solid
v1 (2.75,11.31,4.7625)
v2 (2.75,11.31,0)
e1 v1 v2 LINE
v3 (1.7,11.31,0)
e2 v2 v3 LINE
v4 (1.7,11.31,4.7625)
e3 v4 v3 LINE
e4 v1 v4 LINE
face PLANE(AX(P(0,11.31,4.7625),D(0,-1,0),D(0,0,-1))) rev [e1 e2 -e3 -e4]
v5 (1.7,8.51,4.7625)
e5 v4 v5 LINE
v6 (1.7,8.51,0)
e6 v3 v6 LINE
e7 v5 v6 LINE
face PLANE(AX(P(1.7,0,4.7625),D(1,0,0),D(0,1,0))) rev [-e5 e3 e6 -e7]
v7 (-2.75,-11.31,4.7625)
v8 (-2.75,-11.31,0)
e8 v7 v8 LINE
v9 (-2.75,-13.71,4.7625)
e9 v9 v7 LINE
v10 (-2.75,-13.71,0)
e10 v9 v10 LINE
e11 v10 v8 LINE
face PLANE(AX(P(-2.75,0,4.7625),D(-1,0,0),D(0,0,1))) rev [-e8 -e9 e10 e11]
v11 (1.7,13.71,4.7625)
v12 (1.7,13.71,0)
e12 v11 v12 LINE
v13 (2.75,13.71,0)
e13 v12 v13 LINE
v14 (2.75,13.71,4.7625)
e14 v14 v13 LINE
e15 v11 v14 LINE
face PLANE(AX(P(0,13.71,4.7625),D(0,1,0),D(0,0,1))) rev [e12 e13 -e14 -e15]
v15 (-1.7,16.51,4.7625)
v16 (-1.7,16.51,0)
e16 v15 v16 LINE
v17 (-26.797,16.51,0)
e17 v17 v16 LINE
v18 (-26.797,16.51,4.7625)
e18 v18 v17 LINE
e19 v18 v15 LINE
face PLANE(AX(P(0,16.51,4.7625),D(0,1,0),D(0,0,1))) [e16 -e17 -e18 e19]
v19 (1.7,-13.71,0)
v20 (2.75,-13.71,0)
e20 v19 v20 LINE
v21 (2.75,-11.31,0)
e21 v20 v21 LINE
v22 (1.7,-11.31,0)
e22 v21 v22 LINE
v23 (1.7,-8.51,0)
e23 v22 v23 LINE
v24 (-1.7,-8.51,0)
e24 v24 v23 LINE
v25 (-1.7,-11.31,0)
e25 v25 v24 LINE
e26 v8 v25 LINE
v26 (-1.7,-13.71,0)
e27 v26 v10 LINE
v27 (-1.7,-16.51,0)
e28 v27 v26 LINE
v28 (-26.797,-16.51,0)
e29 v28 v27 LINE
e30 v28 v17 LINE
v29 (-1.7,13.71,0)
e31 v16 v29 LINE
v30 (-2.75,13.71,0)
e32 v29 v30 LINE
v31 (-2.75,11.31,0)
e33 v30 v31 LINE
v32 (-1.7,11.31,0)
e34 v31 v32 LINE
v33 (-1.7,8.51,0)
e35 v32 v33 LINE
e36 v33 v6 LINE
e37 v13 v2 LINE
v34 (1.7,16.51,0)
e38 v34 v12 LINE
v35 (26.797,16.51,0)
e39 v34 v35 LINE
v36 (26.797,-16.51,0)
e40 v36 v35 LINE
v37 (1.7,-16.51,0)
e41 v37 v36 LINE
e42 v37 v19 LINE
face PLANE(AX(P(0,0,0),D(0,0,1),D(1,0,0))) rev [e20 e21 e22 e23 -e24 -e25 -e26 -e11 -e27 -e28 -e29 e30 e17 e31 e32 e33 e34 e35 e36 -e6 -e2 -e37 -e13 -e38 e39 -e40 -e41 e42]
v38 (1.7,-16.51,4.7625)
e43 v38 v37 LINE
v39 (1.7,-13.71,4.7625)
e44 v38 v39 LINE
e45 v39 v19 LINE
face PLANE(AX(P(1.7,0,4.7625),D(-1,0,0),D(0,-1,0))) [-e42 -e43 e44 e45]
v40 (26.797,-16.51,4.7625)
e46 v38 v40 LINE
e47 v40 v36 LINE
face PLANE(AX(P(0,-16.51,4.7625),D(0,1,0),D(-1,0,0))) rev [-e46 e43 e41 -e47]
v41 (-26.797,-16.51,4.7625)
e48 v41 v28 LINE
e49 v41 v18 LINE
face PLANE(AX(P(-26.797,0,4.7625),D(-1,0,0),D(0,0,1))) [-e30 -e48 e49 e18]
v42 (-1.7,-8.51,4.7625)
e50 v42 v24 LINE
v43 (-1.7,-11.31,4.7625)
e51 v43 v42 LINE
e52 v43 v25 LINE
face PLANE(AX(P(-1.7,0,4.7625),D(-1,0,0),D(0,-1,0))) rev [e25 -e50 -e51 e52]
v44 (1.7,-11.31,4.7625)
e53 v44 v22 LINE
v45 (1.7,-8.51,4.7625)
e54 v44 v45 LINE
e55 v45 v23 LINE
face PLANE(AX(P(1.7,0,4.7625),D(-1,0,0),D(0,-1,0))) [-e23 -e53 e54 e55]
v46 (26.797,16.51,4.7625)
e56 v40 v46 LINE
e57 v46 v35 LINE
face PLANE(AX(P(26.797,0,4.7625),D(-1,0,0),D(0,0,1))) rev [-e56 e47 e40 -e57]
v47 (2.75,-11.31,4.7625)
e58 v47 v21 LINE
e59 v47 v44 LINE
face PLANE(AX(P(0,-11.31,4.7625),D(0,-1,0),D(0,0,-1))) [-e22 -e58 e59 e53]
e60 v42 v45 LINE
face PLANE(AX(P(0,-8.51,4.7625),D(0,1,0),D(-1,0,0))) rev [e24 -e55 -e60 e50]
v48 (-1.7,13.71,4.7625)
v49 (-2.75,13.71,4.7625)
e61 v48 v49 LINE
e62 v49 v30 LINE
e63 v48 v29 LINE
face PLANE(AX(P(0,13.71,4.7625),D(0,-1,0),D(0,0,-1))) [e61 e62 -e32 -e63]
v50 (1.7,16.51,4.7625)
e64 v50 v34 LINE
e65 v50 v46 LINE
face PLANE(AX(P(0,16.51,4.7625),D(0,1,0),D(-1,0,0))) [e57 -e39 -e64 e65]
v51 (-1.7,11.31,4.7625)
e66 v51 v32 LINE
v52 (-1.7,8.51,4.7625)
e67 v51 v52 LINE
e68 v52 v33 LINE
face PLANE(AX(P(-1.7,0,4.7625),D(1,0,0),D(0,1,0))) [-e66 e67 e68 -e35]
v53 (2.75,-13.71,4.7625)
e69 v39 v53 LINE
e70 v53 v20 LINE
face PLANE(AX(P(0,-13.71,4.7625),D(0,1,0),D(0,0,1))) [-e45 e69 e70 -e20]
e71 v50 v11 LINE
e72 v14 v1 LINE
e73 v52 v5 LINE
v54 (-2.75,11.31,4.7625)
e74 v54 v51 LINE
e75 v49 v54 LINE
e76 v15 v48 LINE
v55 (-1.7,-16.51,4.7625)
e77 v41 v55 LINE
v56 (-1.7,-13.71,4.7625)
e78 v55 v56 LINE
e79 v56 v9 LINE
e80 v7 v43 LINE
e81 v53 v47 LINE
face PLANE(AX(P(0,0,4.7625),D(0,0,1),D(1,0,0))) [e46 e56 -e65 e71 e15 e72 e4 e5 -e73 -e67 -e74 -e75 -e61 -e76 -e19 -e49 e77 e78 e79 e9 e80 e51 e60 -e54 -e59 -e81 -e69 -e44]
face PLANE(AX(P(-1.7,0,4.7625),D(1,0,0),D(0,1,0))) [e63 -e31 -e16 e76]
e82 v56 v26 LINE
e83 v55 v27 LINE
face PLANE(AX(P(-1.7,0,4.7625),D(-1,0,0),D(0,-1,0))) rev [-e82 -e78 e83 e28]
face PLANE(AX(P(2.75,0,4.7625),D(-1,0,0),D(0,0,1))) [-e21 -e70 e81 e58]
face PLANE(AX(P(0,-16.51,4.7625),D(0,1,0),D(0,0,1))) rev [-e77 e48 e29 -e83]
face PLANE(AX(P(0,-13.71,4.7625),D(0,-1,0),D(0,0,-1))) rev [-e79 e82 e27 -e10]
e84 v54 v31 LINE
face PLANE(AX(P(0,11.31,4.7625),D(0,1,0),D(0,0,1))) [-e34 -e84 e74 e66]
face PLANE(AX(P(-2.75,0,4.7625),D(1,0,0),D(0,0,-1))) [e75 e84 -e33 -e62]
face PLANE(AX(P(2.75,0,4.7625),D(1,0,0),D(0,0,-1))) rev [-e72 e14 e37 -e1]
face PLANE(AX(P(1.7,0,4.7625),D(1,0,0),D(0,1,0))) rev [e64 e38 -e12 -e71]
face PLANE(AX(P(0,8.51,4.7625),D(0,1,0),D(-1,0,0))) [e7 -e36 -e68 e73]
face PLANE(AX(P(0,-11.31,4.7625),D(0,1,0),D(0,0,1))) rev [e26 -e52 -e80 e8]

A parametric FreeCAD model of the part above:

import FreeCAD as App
import Part
import Sketcher

V = App.Vector
Q = App.Units.Quantity


def add_polygon(sketch, points):
    """Adds a closed chain of lines whose ends are joined by coincident constraints."""
    first, n = sketch.GeometryCount, len(points)
    for a, b in zip(points, points[1:] + points[:1]):
        sketch.addGeometry(Part.LineSegment(App.Vector(*a, 0), App.Vector(*b, 0)), False)
    for i in range(n):
        sketch.addConstraint(Sketcher.Constraint("Coincident", first + i, 2, first + (i + 1) % n, 1))

doc = App.newDocument("Part")
body = doc.addObject("PartDesign::Body", "Body")

sketch1 = body.newObject("Sketcher::SketchObject", "Sketch")
sketch1.AttachmentSupport = (doc.getObject("XY_Plane"), [""])
sketch1.MapMode = "FlatFace"
add_polygon(sketch1, [(1.7, -13.7), (1.7, -16.5), (26.8, -16.5), (26.8, 16.5), (1.7, 16.5), (1.7, 13.7), (2.8, 13.7), (2.8, 11.3), (1.7, 11.3), (1.7, 8.5), (-1.7, 8.5), (-1.7, 11.3), (-2.8, 11.3), (-2.8, 13.7), (-1.7, 13.7), (-1.7, 16.5), (-26.8, 16.5), (-26.8, -16.5), (-1.7, -16.5), (-1.7, -13.7), (-2.8, -13.7), (-2.8, -11.3), (-1.7, -11.3), (-1.7, -8.5), (1.7, -8.5), (1.7, -11.3), (2.8, -11.3), (2.8, -13.7)])
sketch1.addConstraint([
    Sketcher.Constraint("Vertical", 0),
    Sketcher.Constraint("Horizontal", 1),
    Sketcher.Constraint("Vertical", 2),
    Sketcher.Constraint("Horizontal", 3),
    Sketcher.Constraint("Vertical", 4),
    Sketcher.Constraint("Horizontal", 5),
    Sketcher.Constraint("Vertical", 6),
    Sketcher.Constraint("Horizontal", 7),
    Sketcher.Constraint("Vertical", 8),
    Sketcher.Constraint("Horizontal", 9),
    Sketcher.Constraint("Vertical", 10),
    Sketcher.Constraint("Horizontal", 11),
    Sketcher.Constraint("Vertical", 12),
    Sketcher.Constraint("Horizontal", 13),
    Sketcher.Constraint("Vertical", 14),
    Sketcher.Constraint("Horizontal", 15),
    Sketcher.Constraint("Vertical", 16),
    Sketcher.Constraint("Horizontal", 17),
    Sketcher.Constraint("Vertical", 18),
    Sketcher.Constraint("Horizontal", 19),
    Sketcher.Constraint("Vertical", 20),
    Sketcher.Constraint("Horizontal", 21),
    Sketcher.Constraint("Vertical", 22),
    Sketcher.Constraint("Horizontal", 23),
    Sketcher.Constraint("Vertical", 24),
    Sketcher.Constraint("Horizontal", 25),
    Sketcher.Constraint("Vertical", 26),
    Sketcher.Constraint("Horizontal", 27),
    Sketcher.Constraint("Symmetric", 0, 2, 14, 2, -1, 1),
    Sketcher.Constraint("Symmetric", 2, 2, 16, 2, -1, 1),
    Sketcher.Constraint("Symmetric", 4, 2, 18, 2, -1, 1),
    Sketcher.Constraint("Symmetric", 6, 2, 20, 2, -1, 1),
    Sketcher.Constraint("Symmetric", 8, 2, 22, 2, -1, 1),
    Sketcher.Constraint("Symmetric", 10, 2, 24, 2, -1, 1),
    Sketcher.Constraint("Symmetric", 12, 2, 26, 2, -1, 1),
    Sketcher.Constraint("Symmetric", 7, 2, 10, 2, -2),
    Sketcher.Constraint("Symmetric", 5, 2, 12, 2, -2),
    Sketcher.Constraint("Symmetric", 3, 2, 14, 2, -2),
    Sketcher.Constraint("Vertical", 4, 2, 7, 2),
    Sketcher.Constraint("Equal", 4, 8),
    Sketcher.Constraint("DistanceX", 9, 2, 9, 1, Q("3.4 mm")),
    Sketcher.Constraint("DistanceY", 0, 2, 0, 1, Q("2.8 mm")),
    Sketcher.Constraint("DistanceY", 6, 2, 6, 1, Q("2.4 mm")),
    Sketcher.Constraint("DistanceX", 5, 1, 5, 2, Q("1.05 mm")),
    Sketcher.Constraint("DistanceY", 2, 1, 2, 2, Q("33.02 mm")),
    Sketcher.Constraint("DistanceX", 1, 1, 1, 2, Q("25.097 mm")),
])
pad1 = body.newObject("PartDesign::Pad", "Pad")
pad1.Profile = sketch1
pad1.Length = 4.7625

doc.recompute()
